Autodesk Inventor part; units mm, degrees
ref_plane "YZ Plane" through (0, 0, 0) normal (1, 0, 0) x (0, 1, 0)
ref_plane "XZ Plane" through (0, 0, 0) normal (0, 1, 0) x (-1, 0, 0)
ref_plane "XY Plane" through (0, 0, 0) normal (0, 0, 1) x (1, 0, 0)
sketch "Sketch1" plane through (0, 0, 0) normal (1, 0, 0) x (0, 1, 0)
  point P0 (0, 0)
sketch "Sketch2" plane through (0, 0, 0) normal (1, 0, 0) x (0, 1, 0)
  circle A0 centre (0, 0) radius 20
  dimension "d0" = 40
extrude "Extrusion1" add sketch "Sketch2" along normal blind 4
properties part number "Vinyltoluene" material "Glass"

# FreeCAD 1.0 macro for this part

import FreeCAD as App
import Part
import Sketcher
from FreeCAD import Vector
Q = App.Units.Quantity

doc = App.newDocument("Part")
body = doc.addObject("PartDesign::Body", "Body")

# Sketch on YZ plane
sketch1 = body.newObject("Sketcher::SketchObject", "Sketch")
sketch1.AttachmentSupport = (doc.getObject("YZ_Plane"), [""])
sketch1.MapMode = "FlatFace"
sketch1.addGeometry(Part.Circle(Vector(0, 0, 0), Vector(0, 0, 1), 20), False)
sketch1.addConstraint([
    Sketcher.Constraint("Coincident", 0, 3, -1, 1),
    Sketcher.Constraint("Diameter", 0, Q("40 mm")),
])
pad1 = body.newObject("PartDesign::Pad", "Pad")
pad1.Profile = sketch1
pad1.Length = 4

doc.recompute()
